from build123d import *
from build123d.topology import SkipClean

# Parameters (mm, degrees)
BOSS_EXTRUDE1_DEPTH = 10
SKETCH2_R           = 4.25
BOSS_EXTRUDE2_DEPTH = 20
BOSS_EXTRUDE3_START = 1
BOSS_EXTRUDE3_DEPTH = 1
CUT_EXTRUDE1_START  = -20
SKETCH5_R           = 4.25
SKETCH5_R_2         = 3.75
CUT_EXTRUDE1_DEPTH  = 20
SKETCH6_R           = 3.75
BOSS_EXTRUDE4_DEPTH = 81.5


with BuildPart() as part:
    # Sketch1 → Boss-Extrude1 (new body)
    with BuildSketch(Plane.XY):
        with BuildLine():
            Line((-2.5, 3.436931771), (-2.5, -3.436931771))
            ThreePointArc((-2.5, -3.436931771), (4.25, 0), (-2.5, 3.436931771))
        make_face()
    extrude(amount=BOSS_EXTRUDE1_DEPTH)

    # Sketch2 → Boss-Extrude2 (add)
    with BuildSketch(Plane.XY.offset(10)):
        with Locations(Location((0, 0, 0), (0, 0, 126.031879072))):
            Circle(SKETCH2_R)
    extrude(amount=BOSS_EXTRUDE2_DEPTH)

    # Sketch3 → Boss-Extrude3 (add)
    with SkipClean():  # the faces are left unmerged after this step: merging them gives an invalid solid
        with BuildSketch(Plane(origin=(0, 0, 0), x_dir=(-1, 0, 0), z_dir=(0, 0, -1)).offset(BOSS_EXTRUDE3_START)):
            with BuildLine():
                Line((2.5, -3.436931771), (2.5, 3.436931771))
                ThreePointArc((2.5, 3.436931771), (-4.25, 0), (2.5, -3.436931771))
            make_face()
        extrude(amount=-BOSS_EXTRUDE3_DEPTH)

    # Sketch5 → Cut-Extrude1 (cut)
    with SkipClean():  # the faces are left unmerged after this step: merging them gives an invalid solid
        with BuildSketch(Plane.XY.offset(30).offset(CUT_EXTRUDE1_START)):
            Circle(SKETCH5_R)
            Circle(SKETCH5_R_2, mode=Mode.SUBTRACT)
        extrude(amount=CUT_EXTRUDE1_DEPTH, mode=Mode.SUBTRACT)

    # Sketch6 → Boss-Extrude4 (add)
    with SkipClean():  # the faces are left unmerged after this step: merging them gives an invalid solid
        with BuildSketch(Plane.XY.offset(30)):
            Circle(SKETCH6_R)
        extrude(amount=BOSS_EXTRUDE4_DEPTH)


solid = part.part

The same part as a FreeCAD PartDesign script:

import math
import FreeCAD as App
import Part
import Sketcher
from FreeCAD import Vector
Q = App.Units.Quantity

doc = App.newDocument("Part")
body = doc.addObject("PartDesign::Body", "Body")

sketch1 = body.newObject("Sketcher::SketchObject", "Sketch")
sketch1.AttachmentSupport = (doc.getObject("XY_Plane"), [""])
sketch1.MapMode = "FlatFace"
sketch1.addGeometry(Part.LineSegment(Vector(-2.5, 3.436932, 0), Vector(-2.5, -3.436932, 0)), False)
sketch1.addGeometry(Part.ArcOfCircle(Part.Circle(Vector(0, 0, 0), Vector(0, 0, 1), 4.25), math.radians(-126.031879), math.radians(126.031879)), False)
sketch1.addConstraint(Sketcher.Constraint("Coincident", 0, 1, 1, 2))
sketch1.addConstraint(Sketcher.Constraint("Coincident", 1, 1, 0, 2))
sketch1.addConstraint(Sketcher.Constraint("Vertical", 0))
sketch1.addConstraint(Sketcher.Constraint("Coincident", 1, 3, -1, 1))
sketch1.addConstraint(Sketcher.Constraint("Radius", 1, Q("4.25 mm")))
sketch1.addConstraint(Sketcher.Constraint("DistanceX", 0, 1, -1, 1, Q("2.5 mm")))
pad1 = body.newObject("PartDesign::Pad", "Pad")
pad1.Profile = sketch1
pad1.Length = 10

sketch2 = body.newObject("Sketcher::SketchObject", "Sketch001")
sketch2.AttachmentSupport = (doc.getObject("XY_Plane"), [""])
sketch2.MapMode = "FlatFace"
sketch2.AttachmentOffset = App.Placement(Vector(0, 0, 10), App.Rotation())
sketch2.addGeometry(Part.Circle(Vector(0, 0, 0), Vector(0, 0, 1), 4.25), False)
sketch2.addConstraint(Sketcher.Constraint("Coincident", 0, 3, -1, 1))
sketch2.addConstraint(Sketcher.Constraint("Diameter", 0, Q("8.5 mm")))
pad2 = body.newObject("PartDesign::Pad", "Pad001")
pad2.Profile = sketch2
pad2.Length = 20

sketch3 = body.newObject("Sketcher::SketchObject", "Sketch002")
sketch3.AttachmentSupport = (doc.getObject("XY_Plane"), [""])
sketch3.MapMode = "FlatFace"
sketch3.AttachmentOffset = App.Placement(Vector(0, 0, -1), App.Rotation())
sketch3.addGeometry(Part.LineSegment(Vector(-2.5, -3.436932, 0), Vector(-2.5, 3.436932, 0)), False)
sketch3.addGeometry(Part.ArcOfCircle(Part.Circle(Vector(0, 0, 0), Vector(0, 0, 1), 4.25), math.radians(-126.031879), math.radians(126.031879)), False)
sketch3.addConstraint(Sketcher.Constraint("Coincident", 0, 1, 1, 1))
sketch3.addConstraint(Sketcher.Constraint("Coincident", 1, 2, 0, 2))
sketch3.addConstraint(Sketcher.Constraint("Vertical", 0))
sketch3.addConstraint(Sketcher.Constraint("Coincident", 1, 3, -1, 1))
sketch3.addConstraint(Sketcher.Constraint("Radius", 1, Q("4.25 mm")))
sketch3.addConstraint(Sketcher.Constraint("DistanceX", 0, 1, -1, 1, Q("2.5 mm")))
pad3 = body.newObject("PartDesign::Pad", "Pad002")
pad3.Profile = sketch3
pad3.Length = 1

sketch4 = body.newObject("Sketcher::SketchObject", "Sketch003")
sketch4.AttachmentSupport = (doc.getObject("XY_Plane"), [""])
sketch4.MapMode = "FlatFace"
sketch4.AttachmentOffset = App.Placement(Vector(0, 0, 10), App.Rotation())
sketch4.addGeometry(Part.Circle(Vector(0, 0, 0), Vector(0, 0, 1), 4.25), False)
sketch4.addGeometry(Part.Circle(Vector(0, 0, 0), Vector(0, 0, 1), 3.75), False)
sketch4.addConstraint(Sketcher.Constraint("Coincident", 0, 3, -1, 1))
sketch4.addConstraint(Sketcher.Constraint("Coincident", 1, 3, -1, 1))
sketch4.addConstraint(Sketcher.Constraint("Diameter", 0, Q("8.5 mm")))
sketch4.addConstraint(Sketcher.Constraint("Diameter", 1, Q("7.5 mm")))
pocket1 = body.newObject("PartDesign::Pocket", "Pocket")
pocket1.Profile = sketch4
pocket1.Length = 20
pocket1.Reversed = True

sketch5 = body.newObject("Sketcher::SketchObject", "Sketch004")
sketch5.AttachmentSupport = (doc.getObject("XY_Plane"), [""])
sketch5.MapMode = "FlatFace"
sketch5.AttachmentOffset = App.Placement(Vector(0, 0, 30), App.Rotation())
sketch5.addGeometry(Part.Circle(Vector(0, 0, 0), Vector(0, 0, 1), 3.75), False)
sketch5.addConstraint(Sketcher.Constraint("Coincident", 0, 3, -1, 1))
sketch5.addConstraint(Sketcher.Constraint("Diameter", 0, Q("7.5 mm")))
pad4 = body.newObject("PartDesign::Pad", "Pad003")
pad4.Profile = sketch5
pad4.Length = 81.5

doc.recompute()
